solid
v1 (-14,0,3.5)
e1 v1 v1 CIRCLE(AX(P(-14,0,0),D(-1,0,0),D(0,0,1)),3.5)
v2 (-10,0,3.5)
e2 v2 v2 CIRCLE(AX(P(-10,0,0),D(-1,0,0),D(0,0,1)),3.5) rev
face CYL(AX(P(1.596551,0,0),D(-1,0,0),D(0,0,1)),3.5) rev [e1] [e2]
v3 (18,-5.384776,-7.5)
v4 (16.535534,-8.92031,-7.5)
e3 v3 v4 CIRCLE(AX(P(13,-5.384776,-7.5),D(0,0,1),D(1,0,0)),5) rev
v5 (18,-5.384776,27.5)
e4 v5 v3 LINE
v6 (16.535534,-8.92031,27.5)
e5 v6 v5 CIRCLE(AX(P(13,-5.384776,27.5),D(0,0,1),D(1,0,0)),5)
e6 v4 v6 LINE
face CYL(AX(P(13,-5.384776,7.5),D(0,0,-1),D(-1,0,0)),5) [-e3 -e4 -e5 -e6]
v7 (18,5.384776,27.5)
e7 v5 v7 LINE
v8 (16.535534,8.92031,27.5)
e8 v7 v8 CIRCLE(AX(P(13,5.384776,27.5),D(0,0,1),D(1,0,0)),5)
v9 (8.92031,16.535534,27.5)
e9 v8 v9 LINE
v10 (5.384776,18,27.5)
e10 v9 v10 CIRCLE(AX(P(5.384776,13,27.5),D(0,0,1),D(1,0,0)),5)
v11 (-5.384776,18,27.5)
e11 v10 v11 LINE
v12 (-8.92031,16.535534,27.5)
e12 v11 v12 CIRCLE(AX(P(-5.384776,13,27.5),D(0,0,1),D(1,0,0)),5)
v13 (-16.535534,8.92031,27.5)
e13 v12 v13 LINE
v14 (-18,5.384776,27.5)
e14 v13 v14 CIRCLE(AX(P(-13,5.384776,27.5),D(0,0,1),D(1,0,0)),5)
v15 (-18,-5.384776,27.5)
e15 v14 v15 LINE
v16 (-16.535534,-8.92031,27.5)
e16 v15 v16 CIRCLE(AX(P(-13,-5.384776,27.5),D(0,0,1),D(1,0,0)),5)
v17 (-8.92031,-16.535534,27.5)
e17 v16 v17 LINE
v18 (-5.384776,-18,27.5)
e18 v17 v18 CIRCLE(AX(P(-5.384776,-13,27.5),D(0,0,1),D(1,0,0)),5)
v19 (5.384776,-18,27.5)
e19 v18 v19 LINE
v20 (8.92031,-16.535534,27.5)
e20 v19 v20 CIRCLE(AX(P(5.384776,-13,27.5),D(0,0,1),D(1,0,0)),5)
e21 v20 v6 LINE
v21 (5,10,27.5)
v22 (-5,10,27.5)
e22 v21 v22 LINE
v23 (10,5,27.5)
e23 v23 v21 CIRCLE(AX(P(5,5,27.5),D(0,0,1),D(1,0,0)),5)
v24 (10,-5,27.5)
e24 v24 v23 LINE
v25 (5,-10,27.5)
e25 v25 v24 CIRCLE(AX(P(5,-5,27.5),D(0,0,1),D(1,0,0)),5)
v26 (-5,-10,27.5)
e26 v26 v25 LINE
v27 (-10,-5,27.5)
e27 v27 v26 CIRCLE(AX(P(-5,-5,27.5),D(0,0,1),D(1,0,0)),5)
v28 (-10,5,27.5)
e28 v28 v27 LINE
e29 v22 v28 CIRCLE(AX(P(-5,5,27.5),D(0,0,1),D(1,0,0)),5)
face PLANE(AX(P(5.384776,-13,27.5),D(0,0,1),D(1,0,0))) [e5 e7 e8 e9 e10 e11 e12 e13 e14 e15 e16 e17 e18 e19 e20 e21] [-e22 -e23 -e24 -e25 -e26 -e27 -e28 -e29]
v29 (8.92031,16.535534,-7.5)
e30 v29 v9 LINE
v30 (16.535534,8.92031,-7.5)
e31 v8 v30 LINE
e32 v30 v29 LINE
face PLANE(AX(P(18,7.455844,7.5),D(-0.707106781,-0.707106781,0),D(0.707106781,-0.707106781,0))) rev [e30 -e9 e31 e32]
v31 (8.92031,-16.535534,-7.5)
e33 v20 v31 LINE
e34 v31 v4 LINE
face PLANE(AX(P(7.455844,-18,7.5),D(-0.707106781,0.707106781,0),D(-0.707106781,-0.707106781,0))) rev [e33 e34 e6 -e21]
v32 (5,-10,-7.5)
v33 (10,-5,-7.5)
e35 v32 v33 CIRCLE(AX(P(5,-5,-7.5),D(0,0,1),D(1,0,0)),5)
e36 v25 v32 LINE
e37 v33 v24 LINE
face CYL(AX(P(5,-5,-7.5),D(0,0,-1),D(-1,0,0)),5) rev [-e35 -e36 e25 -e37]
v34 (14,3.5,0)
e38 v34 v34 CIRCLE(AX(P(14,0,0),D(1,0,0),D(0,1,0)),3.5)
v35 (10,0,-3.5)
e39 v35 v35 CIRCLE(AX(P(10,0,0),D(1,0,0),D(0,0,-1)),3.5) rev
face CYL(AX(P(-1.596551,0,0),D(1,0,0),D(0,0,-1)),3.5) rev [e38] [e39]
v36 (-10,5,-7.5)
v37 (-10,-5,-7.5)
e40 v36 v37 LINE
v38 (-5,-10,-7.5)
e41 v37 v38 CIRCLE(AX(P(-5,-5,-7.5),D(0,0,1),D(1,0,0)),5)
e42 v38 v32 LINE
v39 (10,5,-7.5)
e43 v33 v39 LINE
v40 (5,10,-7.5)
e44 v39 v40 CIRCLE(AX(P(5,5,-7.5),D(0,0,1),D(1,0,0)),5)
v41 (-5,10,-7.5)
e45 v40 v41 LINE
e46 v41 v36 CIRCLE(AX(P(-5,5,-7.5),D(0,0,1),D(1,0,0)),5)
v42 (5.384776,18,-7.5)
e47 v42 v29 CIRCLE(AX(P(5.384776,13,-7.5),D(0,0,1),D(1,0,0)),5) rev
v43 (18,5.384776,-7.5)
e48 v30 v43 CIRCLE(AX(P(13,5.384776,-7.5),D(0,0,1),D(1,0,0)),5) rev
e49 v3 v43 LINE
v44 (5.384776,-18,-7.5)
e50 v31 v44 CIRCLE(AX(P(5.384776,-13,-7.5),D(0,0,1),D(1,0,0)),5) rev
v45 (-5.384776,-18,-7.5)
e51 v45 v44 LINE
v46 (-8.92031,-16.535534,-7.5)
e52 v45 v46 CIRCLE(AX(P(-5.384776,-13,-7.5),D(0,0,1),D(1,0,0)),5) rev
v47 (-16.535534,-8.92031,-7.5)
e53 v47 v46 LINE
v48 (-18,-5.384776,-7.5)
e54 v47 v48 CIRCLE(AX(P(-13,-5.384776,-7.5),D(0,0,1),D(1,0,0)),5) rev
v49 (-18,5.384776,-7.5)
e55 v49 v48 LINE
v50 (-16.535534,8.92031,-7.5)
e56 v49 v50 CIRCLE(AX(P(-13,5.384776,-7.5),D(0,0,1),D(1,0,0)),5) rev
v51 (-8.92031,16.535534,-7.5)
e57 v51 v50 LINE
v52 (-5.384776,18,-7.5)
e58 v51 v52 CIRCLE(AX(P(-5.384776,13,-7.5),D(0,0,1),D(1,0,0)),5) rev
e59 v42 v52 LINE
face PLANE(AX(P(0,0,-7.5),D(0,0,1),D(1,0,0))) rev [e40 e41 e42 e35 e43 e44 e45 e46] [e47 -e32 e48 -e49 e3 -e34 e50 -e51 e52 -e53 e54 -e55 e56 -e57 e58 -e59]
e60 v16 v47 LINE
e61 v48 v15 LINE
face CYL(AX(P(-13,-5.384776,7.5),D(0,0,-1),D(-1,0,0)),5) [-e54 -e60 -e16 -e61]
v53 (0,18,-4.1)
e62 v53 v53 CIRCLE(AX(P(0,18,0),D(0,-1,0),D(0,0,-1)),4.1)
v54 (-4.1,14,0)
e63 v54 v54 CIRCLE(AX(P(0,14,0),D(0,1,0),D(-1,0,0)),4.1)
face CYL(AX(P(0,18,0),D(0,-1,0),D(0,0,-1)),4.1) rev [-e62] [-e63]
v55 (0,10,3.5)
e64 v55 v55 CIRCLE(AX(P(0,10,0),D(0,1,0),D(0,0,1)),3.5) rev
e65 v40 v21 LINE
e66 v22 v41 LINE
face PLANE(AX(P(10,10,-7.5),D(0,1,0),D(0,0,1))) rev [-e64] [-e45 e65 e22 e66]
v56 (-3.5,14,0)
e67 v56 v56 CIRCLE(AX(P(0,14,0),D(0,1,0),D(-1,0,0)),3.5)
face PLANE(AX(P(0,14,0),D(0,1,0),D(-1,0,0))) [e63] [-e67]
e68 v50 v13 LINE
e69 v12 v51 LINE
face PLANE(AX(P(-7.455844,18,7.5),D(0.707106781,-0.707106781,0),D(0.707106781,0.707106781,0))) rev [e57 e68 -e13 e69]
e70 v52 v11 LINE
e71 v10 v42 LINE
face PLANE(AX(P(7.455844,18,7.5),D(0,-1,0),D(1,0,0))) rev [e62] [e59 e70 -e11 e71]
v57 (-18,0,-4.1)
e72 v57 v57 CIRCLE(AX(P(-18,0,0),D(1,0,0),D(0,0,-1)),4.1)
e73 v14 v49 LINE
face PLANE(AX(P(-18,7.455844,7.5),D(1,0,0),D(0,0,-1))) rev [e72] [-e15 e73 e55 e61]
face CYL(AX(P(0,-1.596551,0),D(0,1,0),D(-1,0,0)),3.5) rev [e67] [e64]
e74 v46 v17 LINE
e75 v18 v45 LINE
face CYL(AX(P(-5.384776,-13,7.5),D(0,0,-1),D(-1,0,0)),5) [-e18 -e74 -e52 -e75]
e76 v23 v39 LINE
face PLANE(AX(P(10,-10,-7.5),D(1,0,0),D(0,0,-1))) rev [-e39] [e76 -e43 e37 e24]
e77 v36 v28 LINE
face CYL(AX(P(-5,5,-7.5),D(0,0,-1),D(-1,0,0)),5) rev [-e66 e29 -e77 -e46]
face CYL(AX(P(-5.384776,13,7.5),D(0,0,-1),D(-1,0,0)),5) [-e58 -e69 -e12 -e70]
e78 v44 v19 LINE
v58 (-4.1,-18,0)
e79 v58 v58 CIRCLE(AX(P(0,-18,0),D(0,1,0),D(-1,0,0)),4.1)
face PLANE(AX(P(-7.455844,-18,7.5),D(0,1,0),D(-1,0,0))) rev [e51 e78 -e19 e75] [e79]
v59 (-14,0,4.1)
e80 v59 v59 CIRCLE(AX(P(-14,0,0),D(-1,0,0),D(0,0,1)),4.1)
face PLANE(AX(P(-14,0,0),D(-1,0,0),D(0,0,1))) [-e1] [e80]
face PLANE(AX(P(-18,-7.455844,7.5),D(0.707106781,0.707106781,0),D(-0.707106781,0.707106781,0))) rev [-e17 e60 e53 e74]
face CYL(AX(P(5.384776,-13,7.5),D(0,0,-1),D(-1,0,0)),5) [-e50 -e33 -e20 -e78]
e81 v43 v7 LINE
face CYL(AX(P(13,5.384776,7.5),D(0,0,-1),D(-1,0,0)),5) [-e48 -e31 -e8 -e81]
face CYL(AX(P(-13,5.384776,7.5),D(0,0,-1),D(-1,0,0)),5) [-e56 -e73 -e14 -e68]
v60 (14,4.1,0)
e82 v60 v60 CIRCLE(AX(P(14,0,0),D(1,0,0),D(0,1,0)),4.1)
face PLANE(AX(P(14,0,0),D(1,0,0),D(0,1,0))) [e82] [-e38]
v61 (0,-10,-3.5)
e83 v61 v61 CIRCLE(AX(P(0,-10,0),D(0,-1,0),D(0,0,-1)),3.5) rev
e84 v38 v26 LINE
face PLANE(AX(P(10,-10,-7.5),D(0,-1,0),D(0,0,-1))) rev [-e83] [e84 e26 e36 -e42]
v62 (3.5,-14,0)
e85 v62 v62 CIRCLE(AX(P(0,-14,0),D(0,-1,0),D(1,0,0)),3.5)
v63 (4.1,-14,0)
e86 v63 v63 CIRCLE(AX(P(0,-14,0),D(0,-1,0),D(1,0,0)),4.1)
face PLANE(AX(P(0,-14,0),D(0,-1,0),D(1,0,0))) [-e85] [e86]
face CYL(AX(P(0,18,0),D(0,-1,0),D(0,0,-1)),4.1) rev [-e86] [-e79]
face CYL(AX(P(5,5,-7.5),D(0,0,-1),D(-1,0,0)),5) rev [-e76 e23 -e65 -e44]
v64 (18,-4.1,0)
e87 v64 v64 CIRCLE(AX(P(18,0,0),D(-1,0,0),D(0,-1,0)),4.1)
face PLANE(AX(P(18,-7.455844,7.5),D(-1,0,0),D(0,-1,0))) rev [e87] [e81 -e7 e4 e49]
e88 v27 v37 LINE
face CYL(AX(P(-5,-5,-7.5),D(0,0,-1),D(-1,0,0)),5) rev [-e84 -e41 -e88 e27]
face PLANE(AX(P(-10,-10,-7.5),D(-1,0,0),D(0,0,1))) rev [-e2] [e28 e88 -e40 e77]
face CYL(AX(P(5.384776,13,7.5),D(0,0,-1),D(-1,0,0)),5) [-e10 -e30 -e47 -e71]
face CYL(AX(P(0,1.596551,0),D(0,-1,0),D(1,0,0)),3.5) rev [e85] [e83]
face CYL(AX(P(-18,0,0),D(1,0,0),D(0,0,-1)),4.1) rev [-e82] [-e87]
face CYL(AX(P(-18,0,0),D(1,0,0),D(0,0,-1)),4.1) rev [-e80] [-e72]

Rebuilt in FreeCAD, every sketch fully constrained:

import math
import FreeCAD as App
import Part
import Sketcher

V = App.Vector


def edges_at(feature, points):
    """Names of the edges that pass closest to the given points."""
    edges = feature.Shape.Edges
    near = lambda p: min(range(len(edges)), key=lambda i: edges[i].distToShape(Part.Vertex(*p))[0])
    return sorted({f"Edge{near(p) + 1}" for p in points})


def add_polygon(sketch, points):
    """Adds a closed chain of lines whose ends are joined by coincident constraints."""
    first, n = sketch.GeometryCount, len(points)
    for a, b in zip(points, points[1:] + points[:1]):
        sketch.addGeometry(Part.LineSegment(App.Vector(*a, 0), App.Vector(*b, 0)), False)
    for i in range(n):
        sketch.addConstraint(Sketcher.Constraint("Coincident", first + i, 2, first + (i + 1) % n, 1))

doc = App.newDocument("Part")
body = doc.addObject("PartDesign::Body", "Body")

sketch1 = doc.addObject("Sketcher::SketchObject", "Sketch")
body.addObject(sketch1)
sketch1.AttachmentSupport = (doc.XY_Plane, [""])
sketch1.MapMode = "FlatFace"
add_polygon(sketch1, [(7.455844, -18), (18, -7.455844), (18, 7.455844), (7.455844, 18), (-7.455844, 18), (-18, 7.455844), (-18, -7.455844), (-7.455844, -18)])
sketch1.addConstraint(Sketcher.Constraint("Vertical", 1))
sketch1.addConstraint(Sketcher.Constraint("Horizontal", 3))
sketch1.addConstraint(Sketcher.Constraint("Vertical", 5))
sketch1.addConstraint(Sketcher.Constraint("Horizontal", 7))
sketch1.addConstraint(Sketcher.Constraint("Symmetric", 0, 2, 4, 2, -1, 1))
sketch1.addConstraint(Sketcher.Constraint("Symmetric", 2, 2, 6, 2, -1, 1))
sketch1.addConstraint(Sketcher.Constraint("Perpendicular", 0, 2))
sketch1.addConstraint(Sketcher.Constraint("Perpendicular", 2, 4))
sketch1.addConstraint(Sketcher.Constraint("Perpendicular", 4, 6))
sketch1.addConstraint(Sketcher.Constraint("Horizontal", 1, 2, 4, 2))
sketch1.addConstraint(Sketcher.Constraint("Vertical", 3, 2, 6, 2))
sketch1.addConstraint(Sketcher.Constraint("Equal", 7, 1))
sketch1.addConstraint(Sketcher.Constraint("DistanceX", -1, 1, 0, 2, 18.0))
sketch1.addConstraint(Sketcher.Constraint("DistanceX", 3, 2, 3, 1, 14.911688))
pad1 = doc.addObject("PartDesign::Pad", "Pad")
body.addObject(pad1)
pad1.Profile = sketch1
pad1.Length = 15
pad1.Midplane = True

sketch2 = doc.addObject("Sketcher::SketchObject", "Sketch001")
body.addObject(sketch2)
sketch2.AttachmentSupport = (doc.XY_Plane, [""])
sketch2.MapMode = "FlatFace"
sketch2.AttachmentOffset = App.Placement(V(0, 0, 7.5), App.Rotation())
add_polygon(sketch2, [(-10, 10), (-10, -10), (10, -10), (10, 10)])
sketch2.addConstraint(Sketcher.Constraint("Vertical", 0))
sketch2.addConstraint(Sketcher.Constraint("Horizontal", 1))
sketch2.addConstraint(Sketcher.Constraint("Vertical", 2))
sketch2.addConstraint(Sketcher.Constraint("Horizontal", 3))
sketch2.addConstraint(Sketcher.Constraint("Symmetric", 0, 2, 2, 2, -1, 1))
sketch2.addConstraint(Sketcher.Constraint("Equal", 3, 0))
sketch2.addConstraint(Sketcher.Constraint("DistanceX", 1, 1, 1, 2, 20.0))
pocket1 = doc.addObject("PartDesign::Pocket", "Pocket")
body.addObject(pocket1)
pocket1.Profile = sketch2
pocket1.Type = "ThroughAll"
pocket1.Midplane = True
doc.recompute()

fillet = doc.addObject("PartDesign::Fillet", "Fillet")
body.addObject(fillet)
fillet.Base = (pocket1, edges_at(pocket1, [
    (-10, -10, 0),
    (-10, 10, 0),
    (10, 10, 0),
    (10, -10, 0),
]))
fillet.Radius = 5
doc.recompute()

fillet2 = doc.addObject("PartDesign::Fillet", "Fillet001")
body.addObject(fillet2)
fillet2.Base = (fillet, edges_at(fillet, [
    (-7.456, 18, 0),
    (7.456, 18, 0),
    (18, 7.456, 0),
    (18, -7.456, 0),
    (7.456, -18, 0),
    (-7.456, -18, 0),
    (-18, -7.456, 0),
    (-18, 7.456, 0),
]))
fillet2.Radius = 5

sketch3 = doc.addObject("Sketcher::SketchObject", "Sketch002")
body.addObject(sketch3)
sketch3.AttachmentSupport = (doc.XZ_Plane, [""])
sketch3.MapMode = "FlatFace"
sketch3.AttachmentOffset = App.Placement(V(0, 0, 18), App.Rotation())
sketch3.addGeometry(Part.Circle(V(0, 0, 0), V(0, 0, 1), 4.1), False)
sketch3.addConstraint(Sketcher.Constraint("Coincident", 0, 3, -1, 1))
sketch3.addConstraint(Sketcher.Constraint("Diameter", 0, 8.2))
pocket2 = doc.addObject("PartDesign::Pocket", "Pocket001")
body.addObject(pocket2)
pocket2.Profile = sketch3
pocket2.Type = "ThroughAll"
pocket2.Midplane = True

sketch4 = doc.addObject("Sketcher::SketchObject", "Sketch003")
body.addObject(sketch4)
sketch4.AttachmentSupport = (doc.YZ_Plane, [""])
sketch4.MapMode = "FlatFace"
sketch4.AttachmentOffset = App.Placement(V(0, 0, 18), App.Rotation())
sketch4.addGeometry(Part.Circle(V(0, 0, 0), V(0, 0, 1), 4.1), False)
sketch4.addConstraint(Sketcher.Constraint("Coincident", 0, 3, -1, 1))
sketch4.addConstraint(Sketcher.Constraint("Diameter", 0, 8.2))
pocket3 = doc.addObject("PartDesign::Pocket", "Pocket002")
body.addObject(pocket3)
pocket3.Profile = sketch4
pocket3.Type = "ThroughAll"
pocket3.Midplane = True

sketch5 = doc.addObject("Sketcher::SketchObject", "Sketch004")
body.addObject(sketch5)
sketch5.AttachmentSupport = (doc.XY_Plane, [""])
sketch5.MapMode = "FlatFace"
sketch5.AttachmentOffset = App.Placement(V(0, 0, 27.5), App.Rotation())
sketch5.addGeometry(Part.LineSegment(V(8.92031, -16.535534, 0), V(16.535534, -8.92031, 0)), False)
sketch5.addGeometry(Part.ArcOfCircle(Part.Circle(V(13, -5.384776, 0), V(0, 0, 1), 5), math.radians(-45), math.radians(0)), False)
sketch5.addGeometry(Part.LineSegment(V(18, -5.384776, 0), V(18, 5.384776, 0)), False)
sketch5.addGeometry(Part.ArcOfCircle(Part.Circle(V(13, 5.384776, 0), V(0, 0, 1), 5), math.radians(0), math.radians(45)), False)
sketch5.addGeometry(Part.LineSegment(V(16.535534, 8.92031, 0), V(8.92031, 16.535534, 0)), False)
sketch5.addGeometry(Part.ArcOfCircle(Part.Circle(V(5.384776, 13, 0), V(0, 0, 1), 5), math.radians(45), math.radians(90)), False)
sketch5.addGeometry(Part.LineSegment(V(5.384776, 18, 0), V(-5.384776, 18, 0)), False)
sketch5.addGeometry(Part.ArcOfCircle(Part.Circle(V(-5.384776, 13, 0), V(0, 0, 1), 5), math.radians(90), math.radians(135)), False)
sketch5.addGeometry(Part.LineSegment(V(-8.92031, 16.535534, 0), V(-16.535534, 8.92031, 0)), False)
sketch5.addGeometry(Part.ArcOfCircle(Part.Circle(V(-13, 5.384776, 0), V(0, 0, 1), 5), math.radians(135), math.radians(180)), False)
sketch5.addGeometry(Part.LineSegment(V(-18, 5.384776, 0), V(-18, -5.384776, 0)), False)
sketch5.addGeometry(Part.ArcOfCircle(Part.Circle(V(-13, -5.384776, 0), V(0, 0, 1), 5), math.radians(180), math.radians(225)), False)
sketch5.addGeometry(Part.LineSegment(V(-16.535534, -8.92031, 0), V(-8.92031, -16.535534, 0)), False)
sketch5.addGeometry(Part.ArcOfCircle(Part.Circle(V(-5.384776, -13, 0), V(0, 0, 1), 5), math.radians(-135), math.radians(-90)), False)
sketch5.addGeometry(Part.LineSegment(V(-5.384776, -18, 0), V(5.384776, -18, 0)), False)
sketch5.addGeometry(Part.ArcOfCircle(Part.Circle(V(5.384776, -13, 0), V(0, 0, 1), 5), math.radians(-90), math.radians(-45)), False)
sketch5.addGeometry(Part.LineSegment(V(-5, 10, 0), V(5, 10, 0)), False)
sketch5.addGeometry(Part.ArcOfCircle(Part.Circle(V(5, 5, 0), V(0, 0, 1), 5), math.radians(0), math.radians(90)), False)
sketch5.addGeometry(Part.LineSegment(V(10, 5, 0), V(10, -5, 0)), False)
sketch5.addGeometry(Part.ArcOfCircle(Part.Circle(V(5, -5, 0), V(0, 0, 1), 5), math.radians(-90), math.radians(0)), False)
sketch5.addGeometry(Part.LineSegment(V(5, -10, 0), V(-5, -10, 0)), False)
sketch5.addGeometry(Part.ArcOfCircle(Part.Circle(V(-5, -5, 0), V(0, 0, 1), 5), math.radians(180), math.radians(270)), False)
sketch5.addGeometry(Part.LineSegment(V(-10, -5, 0), V(-10, 5, 0)), False)
sketch5.addGeometry(Part.ArcOfCircle(Part.Circle(V(-5, 5, 0), V(0, 0, 1), 5), math.radians(90), math.radians(180)), False)
sketch5.addConstraint(Sketcher.Constraint("Tangent", 0, 2, 1, 1))
sketch5.addConstraint(Sketcher.Constraint("Tangent", 1, 2, 2, 1))
sketch5.addConstraint(Sketcher.Constraint("Tangent", 2, 2, 3, 1))
sketch5.addConstraint(Sketcher.Constraint("Tangent", 3, 2, 4, 1))
sketch5.addConstraint(Sketcher.Constraint("Tangent", 4, 2, 5, 1))
sketch5.addConstraint(Sketcher.Constraint("Tangent", 5, 2, 6, 1))
sketch5.addConstraint(Sketcher.Constraint("Tangent", 6, 2, 7, 1))
sketch5.addConstraint(Sketcher.Constraint("Tangent", 7, 2, 8, 1))
sketch5.addConstraint(Sketcher.Constraint("Tangent", 8, 2, 9, 1))
sketch5.addConstraint(Sketcher.Constraint("Tangent", 9, 2, 10, 1))
sketch5.addConstraint(Sketcher.Constraint("Tangent", 10, 2, 11, 1))
sketch5.addConstraint(Sketcher.Constraint("Tangent", 11, 2, 12, 1))
sketch5.addConstraint(Sketcher.Constraint("Tangent", 12, 2, 13, 1))
sketch5.addConstraint(Sketcher.Constraint("Tangent", 13, 2, 14, 1))
sketch5.addConstraint(Sketcher.Constraint("Tangent", 14, 2, 15, 1))
sketch5.addConstraint(Sketcher.Constraint("Tangent", 15, 2, 0, 1))
sketch5.addConstraint(Sketcher.Constraint("Tangent", 16, 2, 17, 2))
sketch5.addConstraint(Sketcher.Constraint("Tangent", 17, 1, 18, 1))
sketch5.addConstraint(Sketcher.Constraint("Tangent", 18, 2, 19, 2))
sketch5.addConstraint(Sketcher.Constraint("Tangent", 19, 1, 20, 1))
sketch5.addConstraint(Sketcher.Constraint("Tangent", 20, 2, 21, 2))
sketch5.addConstraint(Sketcher.Constraint("Tangent", 21, 1, 22, 1))
sketch5.addConstraint(Sketcher.Constraint("Tangent", 22, 2, 23, 2))
sketch5.addConstraint(Sketcher.Constraint("Tangent", 23, 1, 16, 1))
sketch5.addConstraint(Sketcher.Constraint("Vertical", 2))
sketch5.addConstraint(Sketcher.Constraint("Horizontal", 6))
sketch5.addConstraint(Sketcher.Constraint("Vertical", 10))
sketch5.addConstraint(Sketcher.Constraint("Horizontal", 14))
sketch5.addConstraint(Sketcher.Constraint("Horizontal", 16))
sketch5.addConstraint(Sketcher.Constraint("Vertical", 18))
sketch5.addConstraint(Sketcher.Constraint("Horizontal", 20))
sketch5.addConstraint(Sketcher.Constraint("Vertical", 22))
sketch5.addConstraint(Sketcher.Constraint("Equal", 1, 3))
sketch5.addConstraint(Sketcher.Constraint("Equal", 3, 5))
sketch5.addConstraint(Sketcher.Constraint("Equal", 5, 7))
sketch5.addConstraint(Sketcher.Constraint("Equal", 7, 9))
sketch5.addConstraint(Sketcher.Constraint("Equal", 9, 11))
sketch5.addConstraint(Sketcher.Constraint("Equal", 11, 13))
sketch5.addConstraint(Sketcher.Constraint("Equal", 13, 15))
sketch5.addConstraint(Sketcher.Constraint("Equal", 15, 17))
sketch5.addConstraint(Sketcher.Constraint("Equal", 17, 19))
sketch5.addConstraint(Sketcher.Constraint("Equal", 19, 21))
sketch5.addConstraint(Sketcher.Constraint("Equal", 21, 23))
sketch5.addConstraint(Sketcher.Constraint("Symmetric", 1, 3, 9, 3, -1, 1))
sketch5.addConstraint(Sketcher.Constraint("Symmetric", 5, 3, 13, 3, -1, 1))
sketch5.addConstraint(Sketcher.Constraint("Symmetric", 17, 3, 21, 3, -1, 1))
sketch5.addConstraint(Sketcher.Constraint("Symmetric", 4, 2, 7, 2, -2))
sketch5.addConstraint(Sketcher.Constraint("Symmetric", 0, 2, 11, 2, -2))
sketch5.addConstraint(Sketcher.Constraint("Perpendicular", 0, 4))
sketch5.addConstraint(Sketcher.Constraint("Equal", 14, 2))
sketch5.addConstraint(Sketcher.Constraint("Equal", 20, 18))
sketch5.addConstraint(Sketcher.Constraint("Radius", 1, 5.0))
sketch5.addConstraint(Sketcher.Constraint("DistanceX", 16, 1, 16, 2, 10.0))
sketch5.addConstraint(Sketcher.Constraint("DistanceX", -1, 1, 1, 3, 13.0))
sketch5.addConstraint(Sketcher.Constraint("DistanceX", 6, 2, 6, 1, 10.769553))
pad2 = doc.addObject("PartDesign::Pad", "Pad001")
body.addObject(pad2)
pad2.Profile = sketch5
pad2.Length = 20
pad2.Reversed = True

sketch6 = doc.addObject("Sketcher::SketchObject", "Sketch005")
body.addObject(sketch6)
sketch6.AttachmentSupport = (doc.XZ_Plane, [""])
sketch6.MapMode = "FlatFace"
sketch6.AttachmentOffset = App.Placement(V(0, 0, 14), App.Rotation())
sketch6.addGeometry(Part.Circle(V(0, 0, 0), V(0, 0, 1), 4.1), False)
sketch6.addGeometry(Part.Circle(V(0, 0, 0), V(0, 0, 1), 3.5), False)
sketch6.addConstraint(Sketcher.Constraint("Coincident", 0, 3, -1, 1))
sketch6.addConstraint(Sketcher.Constraint("Coincident", 1, 3, -1, 1))
sketch6.addConstraint(Sketcher.Constraint("Diameter", 1, 7.0))
sketch6.addConstraint(Sketcher.Constraint("Diameter", 0, 8.2))
pad3 = doc.addObject("PartDesign::Pad", "Pad002")
body.addObject(pad3)
pad3.Profile = sketch6
pad3.Length = 4
pad3.Reversed = True

sketch7 = doc.addObject("Sketcher::SketchObject", "Sketch006")
body.addObject(sketch7)
sketch7.AttachmentSupport = (doc.YZ_Plane, [""])
sketch7.MapMode = "FlatFace"
sketch7.AttachmentOffset = App.Placement(V(0, 0, 14), App.Rotation())
sketch7.addGeometry(Part.Circle(V(0, 0, 0), V(0, 0, 1), 4.1), False)
sketch7.addGeometry(Part.Circle(V(0, 0, 0), V(0, 0, 1), 3.5), False)
sketch7.addConstraint(Sketcher.Constraint("Coincident", 0, 3, -1, 1))
sketch7.addConstraint(Sketcher.Constraint("Coincident", 1, 3, -1, 1))
sketch7.addConstraint(Sketcher.Constraint("Diameter", 1, 7.0))
sketch7.addConstraint(Sketcher.Constraint("Diameter", 0, 8.2))
pad4 = doc.addObject("PartDesign::Pad", "Pad003")
body.addObject(pad4)
pad4.Profile = sketch7
pad4.Length = 4
pad4.Reversed = True

sketch8 = doc.addObject("Sketcher::SketchObject", "Sketch007")
body.addObject(sketch8)
sketch8.AttachmentSupport = (doc.XZ_Plane, [""])
sketch8.MapMode = "FlatFace"
sketch8.AttachmentOffset = App.Placement(V(0, 0, -10), App.Rotation())
sketch8.addGeometry(Part.Circle(V(0, 0, 0), V(0, 0, 1), 4.1), False)
sketch8.addGeometry(Part.Circle(V(0, 0, 0), V(0, 0, 1), 3.5), False)
sketch8.addConstraint(Sketcher.Constraint("Coincident", 0, 3, -1, 1))
sketch8.addConstraint(Sketcher.Constraint("Coincident", 1, 3, -1, 1))
sketch8.addConstraint(Sketcher.Constraint("Diameter", 1, 7.0))
sketch8.addConstraint(Sketcher.Constraint("Diameter", 0, 8.2))
pad5 = doc.addObject("PartDesign::Pad", "Pad004")
body.addObject(pad5)
pad5.Profile = sketch8
pad5.Length = 4
pad5.Reversed = True

sketch9 = doc.addObject("Sketcher::SketchObject", "Sketch008")
body.addObject(sketch9)
sketch9.AttachmentSupport = (doc.YZ_Plane, [""])
sketch9.MapMode = "FlatFace"
sketch9.AttachmentOffset = App.Placement(V(0, 0, -10), App.Rotation())
sketch9.addGeometry(Part.Circle(V(0, 0, 0), V(0, 0, 1), 4.1), False)
sketch9.addGeometry(Part.Circle(V(0, 0, 0), V(0, 0, 1), 3.5), False)
sketch9.addConstraint(Sketcher.Constraint("Coincident", 0, 3, -1, 1))
sketch9.addConstraint(Sketcher.Constraint("Coincident", 1, 3, -1, 1))
sketch9.addConstraint(Sketcher.Constraint("Diameter", 1, 7.0))
sketch9.addConstraint(Sketcher.Constraint("Diameter", 0, 8.2))
pad6 = doc.addObject("PartDesign::Pad", "Pad005")
body.addObject(pad6)
pad6.Profile = sketch9
pad6.Length = 4
pad6.Reversed = True

doc.recompute()
